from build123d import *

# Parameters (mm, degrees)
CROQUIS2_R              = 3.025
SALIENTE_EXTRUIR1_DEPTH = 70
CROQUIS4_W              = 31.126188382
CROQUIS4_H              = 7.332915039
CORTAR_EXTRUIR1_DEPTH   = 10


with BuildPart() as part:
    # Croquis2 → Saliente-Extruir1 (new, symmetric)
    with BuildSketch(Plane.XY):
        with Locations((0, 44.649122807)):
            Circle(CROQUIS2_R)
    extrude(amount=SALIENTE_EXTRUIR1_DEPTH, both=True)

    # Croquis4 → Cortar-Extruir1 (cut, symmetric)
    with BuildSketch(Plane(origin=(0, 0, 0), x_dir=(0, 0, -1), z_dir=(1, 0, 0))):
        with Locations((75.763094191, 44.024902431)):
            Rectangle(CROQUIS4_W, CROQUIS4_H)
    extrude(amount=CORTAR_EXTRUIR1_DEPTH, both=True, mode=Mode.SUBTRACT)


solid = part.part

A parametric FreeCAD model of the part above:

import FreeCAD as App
import Part
import Sketcher
from FreeCAD import Vector
Q = App.Units.Quantity

doc = App.newDocument("Part")
body = doc.addObject("PartDesign::Body", "Body")

sketch1 = doc.addObject("Sketcher::SketchObject", "Sketch")
body.addObject(sketch1)
sketch1.AttachmentSupport = (doc.XY_Plane, [""])
sketch1.MapMode = "FlatFace"
sketch1.addGeometry(Part.Circle(Vector(0, 44.6, 0), Vector(0, 0, 1), 3), False)
sketch1.addConstraint(Sketcher.Constraint("PointOnObject", 0, 3, -2))
sketch1.addConstraint(Sketcher.Constraint("Diameter", 0, Q("6.05 mm")))
sketch1.addConstraint(Sketcher.Constraint("DistanceY", -1, 1, 0, 3, Q("44.649123 mm")))
pad1 = doc.addObject("PartDesign::Pad", "Pad")
body.addObject(pad1)
pad1.Profile = sketch1
pad1.Length = 140
pad1.Midplane = True

sketch2 = doc.addObject("Sketcher::SketchObject", "Sketch001")
body.addObject(sketch2)
sketch2.AttachmentSupport = (doc.YZ_Plane, [""])
sketch2.MapMode = "FlatFace"
sketch2.addGeometry(Part.LineSegment(Vector(48, -60, 0), Vector(40, -60, 0)), False)
sketch2.addGeometry(Part.LineSegment(Vector(40, -60, 0), Vector(40, -91, 0)), False)
sketch2.addGeometry(Part.LineSegment(Vector(40, -91, 0), Vector(48, -91, 0)), False)
sketch2.addGeometry(Part.LineSegment(Vector(48, -91, 0), Vector(48, -60, 0)), False)
sketch2.addConstraint(Sketcher.Constraint("Coincident", 0, 2, 1, 1))
sketch2.addConstraint(Sketcher.Constraint("Coincident", 1, 2, 2, 1))
sketch2.addConstraint(Sketcher.Constraint("Coincident", 2, 2, 3, 1))
sketch2.addConstraint(Sketcher.Constraint("Coincident", 3, 2, 0, 1))
sketch2.addConstraint(Sketcher.Constraint("Horizontal", 0))
sketch2.addConstraint(Sketcher.Constraint("Vertical", 1))
sketch2.addConstraint(Sketcher.Constraint("Horizontal", 2))
sketch2.addConstraint(Sketcher.Constraint("Vertical", 3))
sketch2.addConstraint(Sketcher.Constraint("DistanceY", 0, 2, -1, 1, Q("60.2 mm")))
sketch2.addConstraint(Sketcher.Constraint("DistanceY", 1, 2, 1, 1, Q("31.126188 mm")))
sketch2.addConstraint(Sketcher.Constraint("DistanceX", 0, 2, 0, 1, Q("7.332915 mm")))
sketch2.addConstraint(Sketcher.Constraint("DistanceX", -1, 1, 2, 2, Q("47.69136 mm")))
pocket1 = doc.addObject("PartDesign::Pocket", "Pocket")
body.addObject(pocket1)
pocket1.Profile = sketch2
pocket1.Length = 20
pocket1.Midplane = True

doc.recompute()
